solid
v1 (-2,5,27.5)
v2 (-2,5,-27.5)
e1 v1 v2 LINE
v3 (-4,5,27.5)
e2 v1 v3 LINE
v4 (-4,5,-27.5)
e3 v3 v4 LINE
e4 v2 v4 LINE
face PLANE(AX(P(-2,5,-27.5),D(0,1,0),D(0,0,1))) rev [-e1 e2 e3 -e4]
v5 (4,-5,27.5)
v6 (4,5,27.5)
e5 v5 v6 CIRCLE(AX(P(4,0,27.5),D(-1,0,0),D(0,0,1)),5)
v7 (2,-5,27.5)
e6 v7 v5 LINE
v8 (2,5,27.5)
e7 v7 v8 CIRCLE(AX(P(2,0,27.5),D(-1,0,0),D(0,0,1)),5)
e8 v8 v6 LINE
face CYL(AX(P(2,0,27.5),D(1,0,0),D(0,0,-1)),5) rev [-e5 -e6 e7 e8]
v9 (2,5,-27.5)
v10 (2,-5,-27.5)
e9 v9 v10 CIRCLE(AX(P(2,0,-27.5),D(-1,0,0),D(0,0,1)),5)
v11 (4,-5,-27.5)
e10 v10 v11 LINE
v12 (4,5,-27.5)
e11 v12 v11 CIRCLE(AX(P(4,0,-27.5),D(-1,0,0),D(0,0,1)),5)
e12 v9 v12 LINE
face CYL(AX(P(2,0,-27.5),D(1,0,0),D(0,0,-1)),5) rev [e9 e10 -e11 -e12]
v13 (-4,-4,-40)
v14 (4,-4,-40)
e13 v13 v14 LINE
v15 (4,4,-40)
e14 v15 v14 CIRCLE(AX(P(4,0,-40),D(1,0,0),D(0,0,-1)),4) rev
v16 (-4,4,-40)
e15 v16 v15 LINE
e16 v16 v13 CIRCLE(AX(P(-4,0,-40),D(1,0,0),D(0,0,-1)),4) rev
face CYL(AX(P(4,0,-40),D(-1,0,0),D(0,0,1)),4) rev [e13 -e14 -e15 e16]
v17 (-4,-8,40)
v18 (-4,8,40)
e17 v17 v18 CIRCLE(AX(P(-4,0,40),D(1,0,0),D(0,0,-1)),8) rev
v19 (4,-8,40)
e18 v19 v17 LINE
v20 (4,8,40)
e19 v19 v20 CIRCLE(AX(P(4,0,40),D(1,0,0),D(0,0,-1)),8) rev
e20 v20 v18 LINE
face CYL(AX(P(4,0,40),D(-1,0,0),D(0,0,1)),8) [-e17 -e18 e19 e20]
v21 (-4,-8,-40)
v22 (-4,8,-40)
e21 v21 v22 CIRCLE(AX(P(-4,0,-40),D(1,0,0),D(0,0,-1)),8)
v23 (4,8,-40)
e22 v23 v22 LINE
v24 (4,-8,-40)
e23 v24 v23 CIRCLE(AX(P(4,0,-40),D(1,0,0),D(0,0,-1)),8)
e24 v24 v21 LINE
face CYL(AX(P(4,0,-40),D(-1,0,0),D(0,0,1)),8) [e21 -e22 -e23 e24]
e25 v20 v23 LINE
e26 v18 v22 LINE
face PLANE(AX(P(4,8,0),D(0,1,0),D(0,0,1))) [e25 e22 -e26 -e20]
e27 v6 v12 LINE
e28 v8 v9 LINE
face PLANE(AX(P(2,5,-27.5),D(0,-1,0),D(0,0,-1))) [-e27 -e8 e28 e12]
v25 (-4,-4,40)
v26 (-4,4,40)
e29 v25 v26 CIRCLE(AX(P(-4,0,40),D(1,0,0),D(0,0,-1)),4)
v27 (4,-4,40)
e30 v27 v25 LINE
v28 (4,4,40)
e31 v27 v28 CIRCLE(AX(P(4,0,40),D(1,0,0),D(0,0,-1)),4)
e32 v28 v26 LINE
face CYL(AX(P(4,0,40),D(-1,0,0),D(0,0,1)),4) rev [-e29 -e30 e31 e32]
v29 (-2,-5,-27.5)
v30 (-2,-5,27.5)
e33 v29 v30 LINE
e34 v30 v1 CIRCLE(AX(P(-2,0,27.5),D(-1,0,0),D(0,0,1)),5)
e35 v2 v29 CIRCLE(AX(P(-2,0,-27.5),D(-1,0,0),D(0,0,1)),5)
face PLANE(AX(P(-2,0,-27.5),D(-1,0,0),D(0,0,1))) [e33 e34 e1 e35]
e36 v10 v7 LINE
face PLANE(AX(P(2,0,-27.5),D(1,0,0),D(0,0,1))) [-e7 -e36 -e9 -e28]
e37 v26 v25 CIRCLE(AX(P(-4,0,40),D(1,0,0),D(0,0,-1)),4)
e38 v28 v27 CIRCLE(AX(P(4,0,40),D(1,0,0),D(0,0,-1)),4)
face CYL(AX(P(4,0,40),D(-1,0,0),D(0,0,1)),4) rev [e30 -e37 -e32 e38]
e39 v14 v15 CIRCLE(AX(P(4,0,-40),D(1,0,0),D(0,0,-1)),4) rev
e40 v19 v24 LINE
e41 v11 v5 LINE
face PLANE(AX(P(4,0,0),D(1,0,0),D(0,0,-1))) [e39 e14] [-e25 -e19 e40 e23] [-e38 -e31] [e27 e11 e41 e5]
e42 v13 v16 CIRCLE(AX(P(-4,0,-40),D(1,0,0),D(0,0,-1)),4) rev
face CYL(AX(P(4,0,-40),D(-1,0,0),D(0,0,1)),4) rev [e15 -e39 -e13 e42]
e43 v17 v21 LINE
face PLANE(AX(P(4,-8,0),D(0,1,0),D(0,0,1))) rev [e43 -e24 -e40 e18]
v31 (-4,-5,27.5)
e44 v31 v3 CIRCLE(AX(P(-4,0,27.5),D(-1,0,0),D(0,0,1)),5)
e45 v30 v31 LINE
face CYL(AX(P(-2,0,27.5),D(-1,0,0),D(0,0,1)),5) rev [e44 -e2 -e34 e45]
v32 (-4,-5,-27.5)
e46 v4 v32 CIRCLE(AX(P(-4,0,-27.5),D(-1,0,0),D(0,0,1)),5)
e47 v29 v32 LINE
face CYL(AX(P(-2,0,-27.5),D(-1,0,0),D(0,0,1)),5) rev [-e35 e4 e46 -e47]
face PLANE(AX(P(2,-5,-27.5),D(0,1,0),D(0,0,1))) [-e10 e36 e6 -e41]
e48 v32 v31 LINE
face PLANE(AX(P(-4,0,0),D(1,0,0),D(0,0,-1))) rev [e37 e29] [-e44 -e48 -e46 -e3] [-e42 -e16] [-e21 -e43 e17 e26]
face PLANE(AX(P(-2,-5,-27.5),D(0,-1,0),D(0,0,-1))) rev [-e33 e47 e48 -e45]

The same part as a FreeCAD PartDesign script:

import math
import FreeCAD as App
import Part
import Sketcher

V = App.Vector
Q = App.Units.Quantity

doc = App.newDocument("Part")
params = doc.addObject("Spreadsheet::Sheet", "Params")
for row, (alias, value) in enumerate([
    ("sketch1_diameter", "8 mm"),
    ("sketch1_radius", "8 mm"),
    ("sketch1_height", "80 mm"),
    ("pad1_length", "8 mm"),
    ("sketch2_radius", "5 mm"),
    ("sketch2_height", "55 mm"),
    ("pocket1_length", "2 mm"),
], start=1):
    params.set(f"A{row}", alias)
    params.set(f"B{row}", "=" + value)
    params.setAlias(f"B{row}", alias)

body = doc.addObject("PartDesign::Body", "Body")

# Sketch on YZ plane
sketch1 = body.newObject("Sketcher::SketchObject", "Sketch")
sketch1.AttachmentSupport = (doc.getObject("YZ_Plane"), [""])
sketch1.MapMode = "FlatFace"
sketch1.addGeometry(Part.LineSegment(V(8, -40, 0), V(8, 40, 0)), False)
sketch1.addGeometry(Part.ArcOfCircle(Part.Circle(V(0, 40, 0), V(0, 0, 1), 8), math.radians(0), math.radians(180)), False)
sketch1.addGeometry(Part.LineSegment(V(-8, 40, 0), V(-8, -40, 0)), False)
sketch1.addGeometry(Part.ArcOfCircle(Part.Circle(V(0, -40, 0), V(0, 0, 1), 8), math.radians(180), math.radians(360)), False)
sketch1.addGeometry(Part.Circle(V(0, -40, 0), V(0, 0, 1), 4), False)
sketch1.addGeometry(Part.Circle(V(0, 40, 0), V(0, 0, 1), 4), False)
sketch1.addConstraint(Sketcher.Constraint("Tangent", 0, 2, 1, 1))
sketch1.addConstraint(Sketcher.Constraint("Tangent", 1, 2, 2, 1))
sketch1.addConstraint(Sketcher.Constraint("Tangent", 2, 2, 3, 1))
sketch1.addConstraint(Sketcher.Constraint("Tangent", 3, 2, 0, 1))
sketch1.addConstraint(Sketcher.Constraint("Vertical", 0))
sketch1.addConstraint(Sketcher.Constraint("Vertical", 2))
sketch1.addConstraint(Sketcher.Constraint("Coincident", 4, 3, 3, 3))
sketch1.addConstraint(Sketcher.Constraint("Coincident", 5, 3, 1, 3))
sketch1.addConstraint(Sketcher.Constraint("Equal", 4, 5))
sketch1.addConstraint(Sketcher.Constraint("Symmetric", 1, 3, 3, 3, -1, 1))
sketch1.addConstraint(Sketcher.Constraint("Diameter", 4, Q("8 mm")))
sketch1.addConstraint(Sketcher.Constraint("Radius", 1, Q("8 mm")))
sketch1.addConstraint(Sketcher.Constraint("DistanceY", 0, 1, 0, 2, Q("80 mm")))
sketch1.setExpression("Constraints[10]", "Params.sketch1_diameter")
sketch1.setExpression("Constraints[11]", "Params.sketch1_radius")
sketch1.setExpression("Constraints[12]", "Params.sketch1_height")
pad1 = body.newObject("PartDesign::Pad", "Pad")
pad1.Profile = sketch1
pad1.setExpression("Length", "Params.pad1_length")
pad1.Midplane = True

# Sketch on YZ plane
sketch2 = body.newObject("Sketcher::SketchObject", "Sketch001")
sketch2.AttachmentSupport = (doc.getObject("YZ_Plane"), [""])
sketch2.MapMode = "FlatFace"
sketch2.AttachmentOffset = App.Placement(V(0, 0, -4), App.Rotation())
sketch2.addGeometry(Part.LineSegment(V(5, 28, 0), V(5, -28, 0)), False)
sketch2.addGeometry(Part.ArcOfCircle(Part.Circle(V(0, -28, 0), V(0, 0, 1), 5), math.radians(180), math.radians(360)), False)
sketch2.addGeometry(Part.LineSegment(V(-5, -28, 0), V(-5, 28, 0)), False)
sketch2.addGeometry(Part.ArcOfCircle(Part.Circle(V(0, 28, 0), V(0, 0, 1), 5), math.radians(0), math.radians(180)), False)
sketch2.addConstraint(Sketcher.Constraint("Tangent", 0, 2, 1, 2))
sketch2.addConstraint(Sketcher.Constraint("Tangent", 1, 1, 2, 1))
sketch2.addConstraint(Sketcher.Constraint("Tangent", 2, 2, 3, 2))
sketch2.addConstraint(Sketcher.Constraint("Tangent", 3, 1, 0, 1))
sketch2.addConstraint(Sketcher.Constraint("Vertical", 0))
sketch2.addConstraint(Sketcher.Constraint("Vertical", 2))
sketch2.addConstraint(Sketcher.Constraint("Symmetric", 1, 3, 3, 3, -1, 1))
sketch2.addConstraint(Sketcher.Constraint("Radius", 1, Q("5 mm")))
sketch2.addConstraint(Sketcher.Constraint("DistanceY", 0, 2, 0, 1, Q("55 mm")))
sketch2.setExpression("Constraints[7]", "Params.sketch2_radius")
sketch2.setExpression("Constraints[8]", "Params.sketch2_height")
pocket1 = body.newObject("PartDesign::Pocket", "Pocket")
pocket1.Profile = sketch2
pocket1.setExpression("Length", "Params.pocket1_length")
pocket1.Reversed = True
doc.recompute()

mirrored = body.newObject("PartDesign::Mirrored", "Mirrored")
mirrored.Originals = [pocket1]
mirrored.MirrorPlane = (doc.getObject("YZ_Plane"), [""])
body.Tip = mirrored

doc.recompute()
